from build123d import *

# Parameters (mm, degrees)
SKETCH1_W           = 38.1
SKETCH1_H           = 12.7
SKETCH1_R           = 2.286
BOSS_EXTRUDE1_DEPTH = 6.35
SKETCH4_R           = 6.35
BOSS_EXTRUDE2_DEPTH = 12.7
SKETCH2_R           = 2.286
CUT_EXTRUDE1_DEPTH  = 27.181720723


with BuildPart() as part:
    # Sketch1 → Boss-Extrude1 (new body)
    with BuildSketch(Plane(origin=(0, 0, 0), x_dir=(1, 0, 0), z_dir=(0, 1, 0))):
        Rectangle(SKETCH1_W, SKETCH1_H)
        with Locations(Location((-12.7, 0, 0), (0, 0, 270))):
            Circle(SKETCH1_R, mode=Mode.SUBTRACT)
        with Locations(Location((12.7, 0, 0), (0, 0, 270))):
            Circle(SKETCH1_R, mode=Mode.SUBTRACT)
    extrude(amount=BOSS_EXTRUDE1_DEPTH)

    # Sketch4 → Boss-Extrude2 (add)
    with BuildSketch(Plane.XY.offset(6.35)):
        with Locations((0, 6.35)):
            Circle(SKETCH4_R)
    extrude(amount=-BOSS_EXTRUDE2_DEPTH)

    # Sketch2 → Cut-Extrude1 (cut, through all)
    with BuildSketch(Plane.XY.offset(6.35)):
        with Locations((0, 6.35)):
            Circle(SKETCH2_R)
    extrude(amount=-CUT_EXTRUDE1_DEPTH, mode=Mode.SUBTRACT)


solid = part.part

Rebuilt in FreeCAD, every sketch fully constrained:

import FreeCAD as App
import Part
import Sketcher
Q = App.Units.Quantity


def add_polygon(sketch, points):
    """Adds a closed chain of lines whose ends are joined by coincident constraints."""
    first, n = sketch.GeometryCount, len(points)
    for a, b in zip(points, points[1:] + points[:1]):
        sketch.addGeometry(Part.LineSegment(App.Vector(*a, 0), App.Vector(*b, 0)), False)
    for i in range(n):
        sketch.addConstraint(Sketcher.Constraint("Coincident", first + i, 2, first + (i + 1) % n, 1))

doc = App.newDocument("Part")
body = doc.addObject("PartDesign::Body", "Body")

# Sketch on XZ plane
sketch1 = doc.addObject("Sketcher::SketchObject", "Sketch")
body.addObject(sketch1)
sketch1.AttachmentSupport = (doc.XZ_Plane, [""])
sketch1.MapMode = "FlatFace"
add_polygon(sketch1, [(-19.1, -6.3), (-19.1, 6.3), (19.1, 6.3), (19.1, -6.3)])  # lines 0-3
sketch1.addGeometry(Part.Circle(App.Vector(-12.7, 0, 0), App.Vector(0, 0, 1), 2.3), False)  # 4
sketch1.addGeometry(Part.Circle(App.Vector(12.7, 0, 0), App.Vector(0, 0, 1), 2.3), False)  # 5
sketch1.addConstraint([
    Sketcher.Constraint("Vertical", 0),
    Sketcher.Constraint("Horizontal", 1),
    Sketcher.Constraint("Vertical", 2),
    Sketcher.Constraint("Horizontal", 3),
    Sketcher.Constraint("Equal", 4, 5),
    Sketcher.Constraint("Symmetric", 4, 3, 5, 3, -1, 1),
    Sketcher.Constraint("Symmetric", 0, 2, 2, 2, -1, 1),
    Sketcher.Constraint("PointOnObject", 4, 3, -1),
    Sketcher.Constraint("Diameter", 4, Q("0.18 in")),
    Sketcher.Constraint("DistanceX", 1, 1, 1, 2, Q("1.5 in")),
    Sketcher.Constraint("DistanceY", 0, 1, 0, 2, Q("0.5 in")),
    Sketcher.Constraint("DistanceX", 4, 3, 5, 3, Q("1 in")),
])
pad1 = doc.addObject("PartDesign::Pad", "Pad")
body.addObject(pad1)
pad1.Profile = sketch1
pad1.Length = Q("0.25 in")
pad1.Reversed = True

# Sketch on XY plane
sketch2 = doc.addObject("Sketcher::SketchObject", "Sketch001")
body.addObject(sketch2)
sketch2.AttachmentSupport = (doc.XY_Plane, [""])
sketch2.MapMode = "FlatFace"
sketch2.AttachmentOffset = App.Placement(App.Vector(0, 0, 0.25 * 25.4), App.Rotation())
sketch2.addGeometry(Part.Circle(App.Vector(0, 6, 0), App.Vector(0, 0, 1), 6), False)
sketch2.addConstraint([
    Sketcher.Constraint("PointOnObject", 0, 3, -2),
    Sketcher.Constraint("Diameter", 0, Q("0.5 in")),
    Sketcher.Constraint("DistanceY", -1, 1, 0, 3, Q("0.25 in")),
])
pad2 = doc.addObject("PartDesign::Pad", "Pad001")
body.addObject(pad2)
pad2.Profile = sketch2
pad2.Length = Q("0.5 in")
pad2.Reversed = True

# Sketch on XY plane
sketch3 = doc.addObject("Sketcher::SketchObject", "Sketch002")
body.addObject(sketch3)
sketch3.AttachmentSupport = (doc.XY_Plane, [""])
sketch3.MapMode = "FlatFace"
sketch3.AttachmentOffset = App.Placement(App.Vector(0, 0, 0.25 * 25.4), App.Rotation())
sketch3.addGeometry(Part.Circle(App.Vector(0, 6.3, 0), App.Vector(0, 0, 1), 2.3), False)
sketch3.addConstraint([
    Sketcher.Constraint("PointOnObject", 0, 3, -2),
    Sketcher.Constraint("Diameter", 0, Q("0.18 in")),
    Sketcher.Constraint("DistanceY", -1, 1, 0, 3, Q("0.25 in")),
])
pocket1 = doc.addObject("PartDesign::Pocket", "Pocket")
body.addObject(pocket1)
pocket1.Profile = sketch3
pocket1.Type = "ThroughAll"

doc.recompute()
